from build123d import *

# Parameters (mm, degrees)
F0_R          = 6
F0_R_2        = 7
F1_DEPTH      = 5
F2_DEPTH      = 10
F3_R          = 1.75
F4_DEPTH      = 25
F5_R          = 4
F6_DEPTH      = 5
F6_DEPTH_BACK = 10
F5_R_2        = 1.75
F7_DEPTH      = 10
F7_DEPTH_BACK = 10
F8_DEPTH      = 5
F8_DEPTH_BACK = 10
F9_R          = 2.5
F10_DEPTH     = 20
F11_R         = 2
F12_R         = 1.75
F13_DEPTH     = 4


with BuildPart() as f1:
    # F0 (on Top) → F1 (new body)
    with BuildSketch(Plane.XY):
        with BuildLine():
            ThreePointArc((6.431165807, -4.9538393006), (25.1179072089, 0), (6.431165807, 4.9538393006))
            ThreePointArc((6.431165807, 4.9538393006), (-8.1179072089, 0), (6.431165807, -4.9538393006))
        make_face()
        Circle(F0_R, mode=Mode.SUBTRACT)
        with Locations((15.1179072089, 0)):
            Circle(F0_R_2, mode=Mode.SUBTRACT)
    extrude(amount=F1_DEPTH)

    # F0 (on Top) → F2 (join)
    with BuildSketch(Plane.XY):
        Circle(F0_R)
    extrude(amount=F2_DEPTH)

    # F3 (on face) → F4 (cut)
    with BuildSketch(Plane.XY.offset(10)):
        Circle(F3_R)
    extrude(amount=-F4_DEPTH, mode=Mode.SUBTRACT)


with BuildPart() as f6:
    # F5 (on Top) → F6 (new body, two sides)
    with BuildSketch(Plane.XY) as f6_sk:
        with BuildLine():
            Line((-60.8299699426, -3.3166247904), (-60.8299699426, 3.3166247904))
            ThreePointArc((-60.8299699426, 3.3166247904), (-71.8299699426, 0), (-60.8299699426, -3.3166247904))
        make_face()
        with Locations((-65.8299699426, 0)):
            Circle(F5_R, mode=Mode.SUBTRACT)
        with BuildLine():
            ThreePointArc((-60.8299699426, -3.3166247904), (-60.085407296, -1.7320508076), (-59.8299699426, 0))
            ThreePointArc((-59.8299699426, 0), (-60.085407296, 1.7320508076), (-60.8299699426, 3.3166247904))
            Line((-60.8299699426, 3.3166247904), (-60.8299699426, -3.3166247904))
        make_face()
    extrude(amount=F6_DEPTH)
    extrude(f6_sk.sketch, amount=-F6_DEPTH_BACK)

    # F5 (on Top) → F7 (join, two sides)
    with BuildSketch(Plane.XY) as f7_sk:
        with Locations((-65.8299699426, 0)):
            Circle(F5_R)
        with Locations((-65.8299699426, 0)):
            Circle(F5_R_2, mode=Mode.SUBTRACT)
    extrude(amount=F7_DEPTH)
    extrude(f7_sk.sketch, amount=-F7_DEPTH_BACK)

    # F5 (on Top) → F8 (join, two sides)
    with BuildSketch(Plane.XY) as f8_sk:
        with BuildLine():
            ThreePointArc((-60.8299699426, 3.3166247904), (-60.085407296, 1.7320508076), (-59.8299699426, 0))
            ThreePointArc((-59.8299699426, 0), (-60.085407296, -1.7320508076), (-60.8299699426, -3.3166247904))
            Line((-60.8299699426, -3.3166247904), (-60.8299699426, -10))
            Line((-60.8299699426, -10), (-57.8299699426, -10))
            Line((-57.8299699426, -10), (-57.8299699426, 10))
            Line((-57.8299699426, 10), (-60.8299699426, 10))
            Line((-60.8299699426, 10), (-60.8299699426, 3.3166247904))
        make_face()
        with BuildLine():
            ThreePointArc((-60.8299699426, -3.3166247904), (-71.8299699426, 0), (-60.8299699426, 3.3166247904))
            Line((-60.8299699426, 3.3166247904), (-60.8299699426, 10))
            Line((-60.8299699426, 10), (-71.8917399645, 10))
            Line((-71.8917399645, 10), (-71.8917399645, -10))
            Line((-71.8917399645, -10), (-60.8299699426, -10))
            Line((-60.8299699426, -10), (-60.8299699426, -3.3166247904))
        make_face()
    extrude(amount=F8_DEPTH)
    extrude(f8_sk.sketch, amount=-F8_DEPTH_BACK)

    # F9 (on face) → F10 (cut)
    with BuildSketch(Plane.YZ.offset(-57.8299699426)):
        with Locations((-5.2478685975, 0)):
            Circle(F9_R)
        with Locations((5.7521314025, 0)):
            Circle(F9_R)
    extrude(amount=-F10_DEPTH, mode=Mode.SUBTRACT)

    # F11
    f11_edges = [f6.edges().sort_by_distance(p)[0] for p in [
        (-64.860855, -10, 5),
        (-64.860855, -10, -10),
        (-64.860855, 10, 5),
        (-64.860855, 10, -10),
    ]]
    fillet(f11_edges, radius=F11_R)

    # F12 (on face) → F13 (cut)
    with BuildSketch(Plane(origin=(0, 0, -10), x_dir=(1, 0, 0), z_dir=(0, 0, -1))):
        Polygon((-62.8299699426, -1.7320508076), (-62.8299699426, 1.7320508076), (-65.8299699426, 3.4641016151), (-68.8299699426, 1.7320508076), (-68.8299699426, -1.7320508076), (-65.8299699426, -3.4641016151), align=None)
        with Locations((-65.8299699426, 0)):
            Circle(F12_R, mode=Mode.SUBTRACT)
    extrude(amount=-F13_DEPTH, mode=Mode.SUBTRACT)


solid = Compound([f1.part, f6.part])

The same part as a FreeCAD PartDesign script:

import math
import FreeCAD as App
import Part
import Sketcher

V = App.Vector
Q = App.Units.Quantity


def edges_at(feature, points):
    """Names of the edges that pass closest to the given points."""
    edges = feature.Shape.Edges
    near = lambda p: min(range(len(edges)), key=lambda i: edges[i].distToShape(Part.Vertex(*p))[0])
    return sorted({f"Edge{near(p) + 1}" for p in points})

doc = App.newDocument("Part")
body = doc.addObject("PartDesign::Body", "Body")

# Sketch on XY plane
sketch1 = body.newObject("Sketcher::SketchObject", "Sketch")
sketch1.AttachmentSupport = (doc.getObject("XY_Plane"), [""])
sketch1.MapMode = "FlatFace"
sketch1.addGeometry(Part.ArcOfCircle(Part.Circle(V(15, 0, 0), V(0, 0, 1), 10), math.radians(-150), math.radians(150)), False)
sketch1.addGeometry(Part.ArcOfCircle(Part.Circle(V(0, 0, 0), V(0, 0, 1), 8), math.radians(38), math.radians(322)), False)
sketch1.addGeometry(Part.Circle(V(0, 0, 0), V(0, 0, 1), 6), False)
sketch1.addGeometry(Part.Circle(V(15, 0, 0), V(0, 0, 1), 7), False)
sketch1.addConstraint(Sketcher.Constraint("Coincident", 0, 1, 1, 2))
sketch1.addConstraint(Sketcher.Constraint("Coincident", 1, 1, 0, 2))
sketch1.addConstraint(Sketcher.Constraint("Coincident", 1, 3, -1, 1))
sketch1.addConstraint(Sketcher.Constraint("Coincident", 2, 3, -1, 1))
sketch1.addConstraint(Sketcher.Constraint("Coincident", 3, 3, 0, 3))
sketch1.addConstraint(Sketcher.Constraint("PointOnObject", 0, 3, -1))
sketch1.addConstraint(Sketcher.Constraint("Diameter", 2, 12.0))
sketch1.addConstraint(Sketcher.Constraint("Diameter", 3, 14.0))
sketch1.addConstraint(Sketcher.Constraint("Radius", 0, 10.0))
sketch1.addConstraint(Sketcher.Constraint("Radius", 1, 8.117907))
sketch1.addConstraint(Sketcher.Constraint("DistanceY", 0, 1, -1, 1, 4.953839))
pad1 = body.newObject("PartDesign::Pad", "Pad")
pad1.Profile = sketch1
pad1.Length = 5

# Sketch on XY plane
sketch2 = body.newObject("Sketcher::SketchObject", "Sketch001")
sketch2.AttachmentSupport = (doc.getObject("XY_Plane"), [""])
sketch2.MapMode = "FlatFace"
sketch2.addGeometry(Part.Circle(V(0, 0, 0), V(0, 0, 1), 6), False)
sketch2.addConstraint(Sketcher.Constraint("Coincident", 0, 3, -1, 1))
sketch2.addConstraint(Sketcher.Constraint("Diameter", 0, 12.0))
pad2 = body.newObject("PartDesign::Pad", "Pad001")
pad2.Profile = sketch2
pad2.Length = 10

# Sketch on XY plane
sketch3 = body.newObject("Sketcher::SketchObject", "Sketch002")
sketch3.AttachmentSupport = (doc.getObject("XY_Plane"), [""])
sketch3.MapMode = "FlatFace"
sketch3.AttachmentOffset = App.Placement(V(0, 0, 10), App.Rotation())
sketch3.addGeometry(Part.Circle(V(0, 0, 0), V(0, 0, 1), 1.8), False)
sketch3.addConstraint(Sketcher.Constraint("Coincident", 0, 3, -1, 1))
sketch3.addConstraint(Sketcher.Constraint("Diameter", 0, 3.5))
pocket1 = body.newObject("PartDesign::Pocket", "Pocket")
pocket1.Profile = sketch3
pocket1.Length = 25
body2 = doc.addObject("PartDesign::Body", "Body001")

# Sketch on XY plane
sketch4 = body2.newObject("Sketcher::SketchObject", "Sketch003")
sketch4.AttachmentSupport = (doc.getObject("XY_Plane001"), [""])
sketch4.MapMode = "FlatFace"
sketch4.addGeometry(Part.ArcOfCircle(Part.Circle(V(-65.8, 0, 0), V(0, 0, 1), 6), math.radians(34), math.radians(326)), False)
sketch4.addGeometry(Part.ArcOfCircle(Part.Circle(V(-65.8, 0, 0), V(0, 0, 1), 6), math.radians(-34), math.radians(0)), False)
sketch4.addGeometry(Part.ArcOfCircle(Part.Circle(V(-65.8, 0, 0), V(0, 0, 1), 6), math.radians(0), math.radians(34)), False)
sketch4.addGeometry(Part.Circle(V(-65.8, 0, 0), V(0, 0, 1), 4), False)
sketch4.addConstraint(Sketcher.Constraint("Tangent", 0, 2, 1, 1))
sketch4.addConstraint(Sketcher.Constraint("Tangent", 1, 2, 2, 1))
sketch4.addConstraint(Sketcher.Constraint("Tangent", 2, 2, 0, 1))
sketch4.addConstraint(Sketcher.Constraint("Coincident", 3, 3, 0, 3))
sketch4.addConstraint(Sketcher.Constraint("Symmetric", 0, 2, 2, 2, -1))
sketch4.addConstraint(Sketcher.Constraint("PointOnObject", 1, 2, -1))
sketch4.addConstraint(Sketcher.Constraint("Diameter", 3, 8.0))
sketch4.addConstraint(Sketcher.Constraint("Radius", 0, 6.0))
sketch4.addConstraint(Sketcher.Constraint("DistanceX", 1, 3, 0, 2, 5.0))
sketch4.addConstraint(Sketcher.Constraint("DistanceX", 0, 3, -1, 1, 65.82997))
pad3 = body2.newObject("PartDesign::Pad", "Pad002")
pad3.Profile = sketch4
pad3.Type = "TwoLengths"
pad3.Length = 5
pad3.Length2 = 10

# Sketch on XY plane
sketch5 = body2.newObject("Sketcher::SketchObject", "Sketch004")
sketch5.AttachmentSupport = (doc.getObject("XY_Plane001"), [""])
sketch5.MapMode = "FlatFace"
sketch5.addGeometry(Part.Circle(V(-65.8, 0, 0), V(0, 0, 1), 4), False)
sketch5.addGeometry(Part.Circle(V(-65.8, 0, 0), V(0, 0, 1), 1.8), False)
sketch5.addConstraint(Sketcher.Constraint("Coincident", 1, 3, 0, 3))
sketch5.addConstraint(Sketcher.Constraint("PointOnObject", 0, 3, -1))
sketch5.addConstraint(Sketcher.Constraint("Diameter", 0, 8.0))
sketch5.addConstraint(Sketcher.Constraint("Diameter", 1, 3.5))
sketch5.addConstraint(Sketcher.Constraint("DistanceX", 0, 3, -1, 1, 65.82997))
pad4 = body2.newObject("PartDesign::Pad", "Pad003")
pad4.Profile = sketch5
pad4.Type = "TwoLengths"
pad4.Length = 10
pad4.Length2 = 10

# Sketch on XY plane
sketch6 = body2.newObject("Sketcher::SketchObject", "Sketch005")
sketch6.AttachmentSupport = (doc.getObject("XY_Plane001"), [""])
sketch6.MapMode = "FlatFace"
sketch6.addGeometry(Part.LineSegment(V(-57.8, -10, 0), V(-57.8, 10, 0)), False)
sketch6.addGeometry(Part.LineSegment(V(-57.8, 10, 0), V(-71.9, 10, 0)), False)
sketch6.addGeometry(Part.LineSegment(V(-71.9, 10, 0), V(-71.9, -10, 0)), False)
sketch6.addGeometry(Part.LineSegment(V(-71.9, -10, 0), V(-57.8, -10, 0)), False)
sketch6.addGeometry(Part.ArcOfCircle(Part.Circle(V(-65.8, 0, 0), V(0, 0, 1), 6), math.radians(0), math.radians(34)), False)
sketch6.addGeometry(Part.ArcOfCircle(Part.Circle(V(-65.8, 0, 0), V(0, 0, 1), 6), math.radians(-34), math.radians(0)), False)
sketch6.addGeometry(Part.ArcOfCircle(Part.Circle(V(-65.8, 0, 0), V(0, 0, 1), 6), math.radians(34), math.radians(326)), False)
sketch6.addConstraint(Sketcher.Constraint("Coincident", 0, 2, 1, 1))
sketch6.addConstraint(Sketcher.Constraint("Coincident", 1, 2, 2, 1))
sketch6.addConstraint(Sketcher.Constraint("Coincident", 2, 2, 3, 1))
sketch6.addConstraint(Sketcher.Constraint("Coincident", 3, 2, 0, 1))
sketch6.addConstraint(Sketcher.Constraint("Tangent", 4, 1, 5, 2))
sketch6.addConstraint(Sketcher.Constraint("Tangent", 5, 1, 6, 2))
sketch6.addConstraint(Sketcher.Constraint("Tangent", 6, 1, 4, 2))
sketch6.addConstraint(Sketcher.Constraint("Vertical", 0))
sketch6.addConstraint(Sketcher.Constraint("Horizontal", 1))
sketch6.addConstraint(Sketcher.Constraint("Vertical", 2))
sketch6.addConstraint(Sketcher.Constraint("Horizontal", 3))
sketch6.addConstraint(Sketcher.Constraint("Symmetric", 5, 1, 6, 1, -1))
sketch6.addConstraint(Sketcher.Constraint("PointOnObject", 4, 1, -1))
sketch6.addConstraint(Sketcher.Constraint("Radius", 4, 6.0))
sketch6.addConstraint(Sketcher.Constraint("DistanceY", 0, 1, 0, 2, 20.0))
sketch6.addConstraint(Sketcher.Constraint("DistanceY", -1, 1, 0, 2, 10.0))
sketch6.addConstraint(Sketcher.Constraint("DistanceX", 4, 3, 0, 2, 8.0))
sketch6.addConstraint(Sketcher.Constraint("DistanceX", 5, 1, 4, 1, 1.0))
sketch6.addConstraint(Sketcher.Constraint("DistanceX", 1, 2, 1, 1, 14.06177))
sketch6.addConstraint(Sketcher.Constraint("DistanceX", 4, 3, -1, 1, 65.82997))
pad5 = body2.newObject("PartDesign::Pad", "Pad004")
pad5.Profile = sketch6
pad5.Type = "TwoLengths"
pad5.Length = 5
pad5.Length2 = 10

# Sketch on YZ plane
sketch7 = body2.newObject("Sketcher::SketchObject", "Sketch006")
sketch7.AttachmentSupport = (doc.getObject("YZ_Plane001"), [""])
sketch7.MapMode = "FlatFace"
sketch7.AttachmentOffset = App.Placement(V(0, 0, -57.82997), App.Rotation())
sketch7.addGeometry(Part.Circle(V(-5.2, 0, 0), V(0, 0, 1), 2.5), False)
sketch7.addGeometry(Part.Circle(V(5.8, 0, 0), V(0, 0, 1), 2.5), False)
sketch7.addConstraint(Sketcher.Constraint("Equal", 0, 1))
sketch7.addConstraint(Sketcher.Constraint("PointOnObject", 0, 3, -1))
sketch7.addConstraint(Sketcher.Constraint("PointOnObject", 1, 3, -1))
sketch7.addConstraint(Sketcher.Constraint("Diameter", 0, 5.0))
sketch7.addConstraint(Sketcher.Constraint("DistanceX", 0, 3, 1, 3, 11.0))
sketch7.addConstraint(Sketcher.Constraint("DistanceX", 0, 3, -1, 1, 5.247869))
pocket2 = body2.newObject("PartDesign::Pocket", "Pocket001")
pocket2.Profile = sketch7
pocket2.Length = 20
doc.recompute()

fillet = body2.newObject("PartDesign::Fillet", "Fillet")
fillet.Base = (pocket2, edges_at(pocket2, [
    (-64.861, -10, 5),
    (-64.861, -10, -10),
    (-64.861, 10, 5),
    (-64.861, 10, -10),
]))
fillet.Radius = 2

# Sketch on XY plane
sketch8 = body2.newObject("Sketcher::SketchObject", "Sketch007")
sketch8.AttachmentSupport = (doc.getObject("XY_Plane001"), [""])
sketch8.MapMode = "FlatFace"
sketch8.AttachmentOffset = App.Placement(V(0, 0, -10), App.Rotation())
sketch8.addGeometry(Part.LineSegment(V(-62.8, 1.7, 0), V(-62.8, -1.7, 0)), False)
sketch8.addGeometry(Part.LineSegment(V(-62.8, -1.7, 0), V(-65.8, -3.5, 0)), False)
sketch8.addGeometry(Part.LineSegment(V(-65.8, -3.5, 0), V(-68.8, -1.7, 0)), False)
sketch8.addGeometry(Part.LineSegment(V(-68.8, -1.7, 0), V(-68.8, 1.7, 0)), False)
sketch8.addGeometry(Part.LineSegment(V(-68.8, 1.7, 0), V(-65.8, 3.5, 0)), False)
sketch8.addGeometry(Part.LineSegment(V(-65.8, 3.5, 0), V(-62.8, 1.7, 0)), False)
sketch8.addGeometry(Part.Circle(V(-65.8, 0, 0), V(0, 0, 1), 1.8), False)
sketch8.addConstraint(Sketcher.Constraint("Coincident", 0, 2, 1, 1))
sketch8.addConstraint(Sketcher.Constraint("Coincident", 1, 2, 2, 1))
sketch8.addConstraint(Sketcher.Constraint("Coincident", 2, 2, 3, 1))
sketch8.addConstraint(Sketcher.Constraint("Coincident", 3, 2, 4, 1))
sketch8.addConstraint(Sketcher.Constraint("Coincident", 4, 2, 5, 1))
sketch8.addConstraint(Sketcher.Constraint("Coincident", 5, 2, 0, 1))
sketch8.addConstraint(Sketcher.Constraint("Vertical", 0))
sketch8.addConstraint(Sketcher.Constraint("Vertical", 3))
sketch8.addConstraint(Sketcher.Constraint("Symmetric", 1, 2, 4, 2, -1))
sketch8.addConstraint(Sketcher.Constraint("PointOnObject", 6, 3, -1))
sketch8.addConstraint(Sketcher.Constraint("Parallel", 1, 4))
sketch8.addConstraint(Sketcher.Constraint("Parallel", 2, 5))
sketch8.addConstraint(Sketcher.Constraint("Horizontal", 0, 2, 2, 2))
sketch8.addConstraint(Sketcher.Constraint("Horizontal", 3, 2, 5, 2))
sketch8.addConstraint(Sketcher.Constraint("Vertical", 6, 3, 1, 2))
sketch8.addConstraint(Sketcher.Constraint("Diameter", 6, 3.5))
sketch8.addConstraint(Sketcher.Constraint("Angle", 1, Q("-150 deg")))
sketch8.addConstraint(Sketcher.Constraint("DistanceX", 6, 3, 0, 2, 3.0))
sketch8.addConstraint(Sketcher.Constraint("DistanceY", 0, 2, 0, 1, 3.464102))
sketch8.addConstraint(Sketcher.Constraint("DistanceX", 6, 3, -1, 1, 65.82997))
pocket3 = body2.newObject("PartDesign::Pocket", "Pocket002")
pocket3.Profile = sketch8
pocket3.Length = 4
pocket3.Reversed = True

doc.recompute()
